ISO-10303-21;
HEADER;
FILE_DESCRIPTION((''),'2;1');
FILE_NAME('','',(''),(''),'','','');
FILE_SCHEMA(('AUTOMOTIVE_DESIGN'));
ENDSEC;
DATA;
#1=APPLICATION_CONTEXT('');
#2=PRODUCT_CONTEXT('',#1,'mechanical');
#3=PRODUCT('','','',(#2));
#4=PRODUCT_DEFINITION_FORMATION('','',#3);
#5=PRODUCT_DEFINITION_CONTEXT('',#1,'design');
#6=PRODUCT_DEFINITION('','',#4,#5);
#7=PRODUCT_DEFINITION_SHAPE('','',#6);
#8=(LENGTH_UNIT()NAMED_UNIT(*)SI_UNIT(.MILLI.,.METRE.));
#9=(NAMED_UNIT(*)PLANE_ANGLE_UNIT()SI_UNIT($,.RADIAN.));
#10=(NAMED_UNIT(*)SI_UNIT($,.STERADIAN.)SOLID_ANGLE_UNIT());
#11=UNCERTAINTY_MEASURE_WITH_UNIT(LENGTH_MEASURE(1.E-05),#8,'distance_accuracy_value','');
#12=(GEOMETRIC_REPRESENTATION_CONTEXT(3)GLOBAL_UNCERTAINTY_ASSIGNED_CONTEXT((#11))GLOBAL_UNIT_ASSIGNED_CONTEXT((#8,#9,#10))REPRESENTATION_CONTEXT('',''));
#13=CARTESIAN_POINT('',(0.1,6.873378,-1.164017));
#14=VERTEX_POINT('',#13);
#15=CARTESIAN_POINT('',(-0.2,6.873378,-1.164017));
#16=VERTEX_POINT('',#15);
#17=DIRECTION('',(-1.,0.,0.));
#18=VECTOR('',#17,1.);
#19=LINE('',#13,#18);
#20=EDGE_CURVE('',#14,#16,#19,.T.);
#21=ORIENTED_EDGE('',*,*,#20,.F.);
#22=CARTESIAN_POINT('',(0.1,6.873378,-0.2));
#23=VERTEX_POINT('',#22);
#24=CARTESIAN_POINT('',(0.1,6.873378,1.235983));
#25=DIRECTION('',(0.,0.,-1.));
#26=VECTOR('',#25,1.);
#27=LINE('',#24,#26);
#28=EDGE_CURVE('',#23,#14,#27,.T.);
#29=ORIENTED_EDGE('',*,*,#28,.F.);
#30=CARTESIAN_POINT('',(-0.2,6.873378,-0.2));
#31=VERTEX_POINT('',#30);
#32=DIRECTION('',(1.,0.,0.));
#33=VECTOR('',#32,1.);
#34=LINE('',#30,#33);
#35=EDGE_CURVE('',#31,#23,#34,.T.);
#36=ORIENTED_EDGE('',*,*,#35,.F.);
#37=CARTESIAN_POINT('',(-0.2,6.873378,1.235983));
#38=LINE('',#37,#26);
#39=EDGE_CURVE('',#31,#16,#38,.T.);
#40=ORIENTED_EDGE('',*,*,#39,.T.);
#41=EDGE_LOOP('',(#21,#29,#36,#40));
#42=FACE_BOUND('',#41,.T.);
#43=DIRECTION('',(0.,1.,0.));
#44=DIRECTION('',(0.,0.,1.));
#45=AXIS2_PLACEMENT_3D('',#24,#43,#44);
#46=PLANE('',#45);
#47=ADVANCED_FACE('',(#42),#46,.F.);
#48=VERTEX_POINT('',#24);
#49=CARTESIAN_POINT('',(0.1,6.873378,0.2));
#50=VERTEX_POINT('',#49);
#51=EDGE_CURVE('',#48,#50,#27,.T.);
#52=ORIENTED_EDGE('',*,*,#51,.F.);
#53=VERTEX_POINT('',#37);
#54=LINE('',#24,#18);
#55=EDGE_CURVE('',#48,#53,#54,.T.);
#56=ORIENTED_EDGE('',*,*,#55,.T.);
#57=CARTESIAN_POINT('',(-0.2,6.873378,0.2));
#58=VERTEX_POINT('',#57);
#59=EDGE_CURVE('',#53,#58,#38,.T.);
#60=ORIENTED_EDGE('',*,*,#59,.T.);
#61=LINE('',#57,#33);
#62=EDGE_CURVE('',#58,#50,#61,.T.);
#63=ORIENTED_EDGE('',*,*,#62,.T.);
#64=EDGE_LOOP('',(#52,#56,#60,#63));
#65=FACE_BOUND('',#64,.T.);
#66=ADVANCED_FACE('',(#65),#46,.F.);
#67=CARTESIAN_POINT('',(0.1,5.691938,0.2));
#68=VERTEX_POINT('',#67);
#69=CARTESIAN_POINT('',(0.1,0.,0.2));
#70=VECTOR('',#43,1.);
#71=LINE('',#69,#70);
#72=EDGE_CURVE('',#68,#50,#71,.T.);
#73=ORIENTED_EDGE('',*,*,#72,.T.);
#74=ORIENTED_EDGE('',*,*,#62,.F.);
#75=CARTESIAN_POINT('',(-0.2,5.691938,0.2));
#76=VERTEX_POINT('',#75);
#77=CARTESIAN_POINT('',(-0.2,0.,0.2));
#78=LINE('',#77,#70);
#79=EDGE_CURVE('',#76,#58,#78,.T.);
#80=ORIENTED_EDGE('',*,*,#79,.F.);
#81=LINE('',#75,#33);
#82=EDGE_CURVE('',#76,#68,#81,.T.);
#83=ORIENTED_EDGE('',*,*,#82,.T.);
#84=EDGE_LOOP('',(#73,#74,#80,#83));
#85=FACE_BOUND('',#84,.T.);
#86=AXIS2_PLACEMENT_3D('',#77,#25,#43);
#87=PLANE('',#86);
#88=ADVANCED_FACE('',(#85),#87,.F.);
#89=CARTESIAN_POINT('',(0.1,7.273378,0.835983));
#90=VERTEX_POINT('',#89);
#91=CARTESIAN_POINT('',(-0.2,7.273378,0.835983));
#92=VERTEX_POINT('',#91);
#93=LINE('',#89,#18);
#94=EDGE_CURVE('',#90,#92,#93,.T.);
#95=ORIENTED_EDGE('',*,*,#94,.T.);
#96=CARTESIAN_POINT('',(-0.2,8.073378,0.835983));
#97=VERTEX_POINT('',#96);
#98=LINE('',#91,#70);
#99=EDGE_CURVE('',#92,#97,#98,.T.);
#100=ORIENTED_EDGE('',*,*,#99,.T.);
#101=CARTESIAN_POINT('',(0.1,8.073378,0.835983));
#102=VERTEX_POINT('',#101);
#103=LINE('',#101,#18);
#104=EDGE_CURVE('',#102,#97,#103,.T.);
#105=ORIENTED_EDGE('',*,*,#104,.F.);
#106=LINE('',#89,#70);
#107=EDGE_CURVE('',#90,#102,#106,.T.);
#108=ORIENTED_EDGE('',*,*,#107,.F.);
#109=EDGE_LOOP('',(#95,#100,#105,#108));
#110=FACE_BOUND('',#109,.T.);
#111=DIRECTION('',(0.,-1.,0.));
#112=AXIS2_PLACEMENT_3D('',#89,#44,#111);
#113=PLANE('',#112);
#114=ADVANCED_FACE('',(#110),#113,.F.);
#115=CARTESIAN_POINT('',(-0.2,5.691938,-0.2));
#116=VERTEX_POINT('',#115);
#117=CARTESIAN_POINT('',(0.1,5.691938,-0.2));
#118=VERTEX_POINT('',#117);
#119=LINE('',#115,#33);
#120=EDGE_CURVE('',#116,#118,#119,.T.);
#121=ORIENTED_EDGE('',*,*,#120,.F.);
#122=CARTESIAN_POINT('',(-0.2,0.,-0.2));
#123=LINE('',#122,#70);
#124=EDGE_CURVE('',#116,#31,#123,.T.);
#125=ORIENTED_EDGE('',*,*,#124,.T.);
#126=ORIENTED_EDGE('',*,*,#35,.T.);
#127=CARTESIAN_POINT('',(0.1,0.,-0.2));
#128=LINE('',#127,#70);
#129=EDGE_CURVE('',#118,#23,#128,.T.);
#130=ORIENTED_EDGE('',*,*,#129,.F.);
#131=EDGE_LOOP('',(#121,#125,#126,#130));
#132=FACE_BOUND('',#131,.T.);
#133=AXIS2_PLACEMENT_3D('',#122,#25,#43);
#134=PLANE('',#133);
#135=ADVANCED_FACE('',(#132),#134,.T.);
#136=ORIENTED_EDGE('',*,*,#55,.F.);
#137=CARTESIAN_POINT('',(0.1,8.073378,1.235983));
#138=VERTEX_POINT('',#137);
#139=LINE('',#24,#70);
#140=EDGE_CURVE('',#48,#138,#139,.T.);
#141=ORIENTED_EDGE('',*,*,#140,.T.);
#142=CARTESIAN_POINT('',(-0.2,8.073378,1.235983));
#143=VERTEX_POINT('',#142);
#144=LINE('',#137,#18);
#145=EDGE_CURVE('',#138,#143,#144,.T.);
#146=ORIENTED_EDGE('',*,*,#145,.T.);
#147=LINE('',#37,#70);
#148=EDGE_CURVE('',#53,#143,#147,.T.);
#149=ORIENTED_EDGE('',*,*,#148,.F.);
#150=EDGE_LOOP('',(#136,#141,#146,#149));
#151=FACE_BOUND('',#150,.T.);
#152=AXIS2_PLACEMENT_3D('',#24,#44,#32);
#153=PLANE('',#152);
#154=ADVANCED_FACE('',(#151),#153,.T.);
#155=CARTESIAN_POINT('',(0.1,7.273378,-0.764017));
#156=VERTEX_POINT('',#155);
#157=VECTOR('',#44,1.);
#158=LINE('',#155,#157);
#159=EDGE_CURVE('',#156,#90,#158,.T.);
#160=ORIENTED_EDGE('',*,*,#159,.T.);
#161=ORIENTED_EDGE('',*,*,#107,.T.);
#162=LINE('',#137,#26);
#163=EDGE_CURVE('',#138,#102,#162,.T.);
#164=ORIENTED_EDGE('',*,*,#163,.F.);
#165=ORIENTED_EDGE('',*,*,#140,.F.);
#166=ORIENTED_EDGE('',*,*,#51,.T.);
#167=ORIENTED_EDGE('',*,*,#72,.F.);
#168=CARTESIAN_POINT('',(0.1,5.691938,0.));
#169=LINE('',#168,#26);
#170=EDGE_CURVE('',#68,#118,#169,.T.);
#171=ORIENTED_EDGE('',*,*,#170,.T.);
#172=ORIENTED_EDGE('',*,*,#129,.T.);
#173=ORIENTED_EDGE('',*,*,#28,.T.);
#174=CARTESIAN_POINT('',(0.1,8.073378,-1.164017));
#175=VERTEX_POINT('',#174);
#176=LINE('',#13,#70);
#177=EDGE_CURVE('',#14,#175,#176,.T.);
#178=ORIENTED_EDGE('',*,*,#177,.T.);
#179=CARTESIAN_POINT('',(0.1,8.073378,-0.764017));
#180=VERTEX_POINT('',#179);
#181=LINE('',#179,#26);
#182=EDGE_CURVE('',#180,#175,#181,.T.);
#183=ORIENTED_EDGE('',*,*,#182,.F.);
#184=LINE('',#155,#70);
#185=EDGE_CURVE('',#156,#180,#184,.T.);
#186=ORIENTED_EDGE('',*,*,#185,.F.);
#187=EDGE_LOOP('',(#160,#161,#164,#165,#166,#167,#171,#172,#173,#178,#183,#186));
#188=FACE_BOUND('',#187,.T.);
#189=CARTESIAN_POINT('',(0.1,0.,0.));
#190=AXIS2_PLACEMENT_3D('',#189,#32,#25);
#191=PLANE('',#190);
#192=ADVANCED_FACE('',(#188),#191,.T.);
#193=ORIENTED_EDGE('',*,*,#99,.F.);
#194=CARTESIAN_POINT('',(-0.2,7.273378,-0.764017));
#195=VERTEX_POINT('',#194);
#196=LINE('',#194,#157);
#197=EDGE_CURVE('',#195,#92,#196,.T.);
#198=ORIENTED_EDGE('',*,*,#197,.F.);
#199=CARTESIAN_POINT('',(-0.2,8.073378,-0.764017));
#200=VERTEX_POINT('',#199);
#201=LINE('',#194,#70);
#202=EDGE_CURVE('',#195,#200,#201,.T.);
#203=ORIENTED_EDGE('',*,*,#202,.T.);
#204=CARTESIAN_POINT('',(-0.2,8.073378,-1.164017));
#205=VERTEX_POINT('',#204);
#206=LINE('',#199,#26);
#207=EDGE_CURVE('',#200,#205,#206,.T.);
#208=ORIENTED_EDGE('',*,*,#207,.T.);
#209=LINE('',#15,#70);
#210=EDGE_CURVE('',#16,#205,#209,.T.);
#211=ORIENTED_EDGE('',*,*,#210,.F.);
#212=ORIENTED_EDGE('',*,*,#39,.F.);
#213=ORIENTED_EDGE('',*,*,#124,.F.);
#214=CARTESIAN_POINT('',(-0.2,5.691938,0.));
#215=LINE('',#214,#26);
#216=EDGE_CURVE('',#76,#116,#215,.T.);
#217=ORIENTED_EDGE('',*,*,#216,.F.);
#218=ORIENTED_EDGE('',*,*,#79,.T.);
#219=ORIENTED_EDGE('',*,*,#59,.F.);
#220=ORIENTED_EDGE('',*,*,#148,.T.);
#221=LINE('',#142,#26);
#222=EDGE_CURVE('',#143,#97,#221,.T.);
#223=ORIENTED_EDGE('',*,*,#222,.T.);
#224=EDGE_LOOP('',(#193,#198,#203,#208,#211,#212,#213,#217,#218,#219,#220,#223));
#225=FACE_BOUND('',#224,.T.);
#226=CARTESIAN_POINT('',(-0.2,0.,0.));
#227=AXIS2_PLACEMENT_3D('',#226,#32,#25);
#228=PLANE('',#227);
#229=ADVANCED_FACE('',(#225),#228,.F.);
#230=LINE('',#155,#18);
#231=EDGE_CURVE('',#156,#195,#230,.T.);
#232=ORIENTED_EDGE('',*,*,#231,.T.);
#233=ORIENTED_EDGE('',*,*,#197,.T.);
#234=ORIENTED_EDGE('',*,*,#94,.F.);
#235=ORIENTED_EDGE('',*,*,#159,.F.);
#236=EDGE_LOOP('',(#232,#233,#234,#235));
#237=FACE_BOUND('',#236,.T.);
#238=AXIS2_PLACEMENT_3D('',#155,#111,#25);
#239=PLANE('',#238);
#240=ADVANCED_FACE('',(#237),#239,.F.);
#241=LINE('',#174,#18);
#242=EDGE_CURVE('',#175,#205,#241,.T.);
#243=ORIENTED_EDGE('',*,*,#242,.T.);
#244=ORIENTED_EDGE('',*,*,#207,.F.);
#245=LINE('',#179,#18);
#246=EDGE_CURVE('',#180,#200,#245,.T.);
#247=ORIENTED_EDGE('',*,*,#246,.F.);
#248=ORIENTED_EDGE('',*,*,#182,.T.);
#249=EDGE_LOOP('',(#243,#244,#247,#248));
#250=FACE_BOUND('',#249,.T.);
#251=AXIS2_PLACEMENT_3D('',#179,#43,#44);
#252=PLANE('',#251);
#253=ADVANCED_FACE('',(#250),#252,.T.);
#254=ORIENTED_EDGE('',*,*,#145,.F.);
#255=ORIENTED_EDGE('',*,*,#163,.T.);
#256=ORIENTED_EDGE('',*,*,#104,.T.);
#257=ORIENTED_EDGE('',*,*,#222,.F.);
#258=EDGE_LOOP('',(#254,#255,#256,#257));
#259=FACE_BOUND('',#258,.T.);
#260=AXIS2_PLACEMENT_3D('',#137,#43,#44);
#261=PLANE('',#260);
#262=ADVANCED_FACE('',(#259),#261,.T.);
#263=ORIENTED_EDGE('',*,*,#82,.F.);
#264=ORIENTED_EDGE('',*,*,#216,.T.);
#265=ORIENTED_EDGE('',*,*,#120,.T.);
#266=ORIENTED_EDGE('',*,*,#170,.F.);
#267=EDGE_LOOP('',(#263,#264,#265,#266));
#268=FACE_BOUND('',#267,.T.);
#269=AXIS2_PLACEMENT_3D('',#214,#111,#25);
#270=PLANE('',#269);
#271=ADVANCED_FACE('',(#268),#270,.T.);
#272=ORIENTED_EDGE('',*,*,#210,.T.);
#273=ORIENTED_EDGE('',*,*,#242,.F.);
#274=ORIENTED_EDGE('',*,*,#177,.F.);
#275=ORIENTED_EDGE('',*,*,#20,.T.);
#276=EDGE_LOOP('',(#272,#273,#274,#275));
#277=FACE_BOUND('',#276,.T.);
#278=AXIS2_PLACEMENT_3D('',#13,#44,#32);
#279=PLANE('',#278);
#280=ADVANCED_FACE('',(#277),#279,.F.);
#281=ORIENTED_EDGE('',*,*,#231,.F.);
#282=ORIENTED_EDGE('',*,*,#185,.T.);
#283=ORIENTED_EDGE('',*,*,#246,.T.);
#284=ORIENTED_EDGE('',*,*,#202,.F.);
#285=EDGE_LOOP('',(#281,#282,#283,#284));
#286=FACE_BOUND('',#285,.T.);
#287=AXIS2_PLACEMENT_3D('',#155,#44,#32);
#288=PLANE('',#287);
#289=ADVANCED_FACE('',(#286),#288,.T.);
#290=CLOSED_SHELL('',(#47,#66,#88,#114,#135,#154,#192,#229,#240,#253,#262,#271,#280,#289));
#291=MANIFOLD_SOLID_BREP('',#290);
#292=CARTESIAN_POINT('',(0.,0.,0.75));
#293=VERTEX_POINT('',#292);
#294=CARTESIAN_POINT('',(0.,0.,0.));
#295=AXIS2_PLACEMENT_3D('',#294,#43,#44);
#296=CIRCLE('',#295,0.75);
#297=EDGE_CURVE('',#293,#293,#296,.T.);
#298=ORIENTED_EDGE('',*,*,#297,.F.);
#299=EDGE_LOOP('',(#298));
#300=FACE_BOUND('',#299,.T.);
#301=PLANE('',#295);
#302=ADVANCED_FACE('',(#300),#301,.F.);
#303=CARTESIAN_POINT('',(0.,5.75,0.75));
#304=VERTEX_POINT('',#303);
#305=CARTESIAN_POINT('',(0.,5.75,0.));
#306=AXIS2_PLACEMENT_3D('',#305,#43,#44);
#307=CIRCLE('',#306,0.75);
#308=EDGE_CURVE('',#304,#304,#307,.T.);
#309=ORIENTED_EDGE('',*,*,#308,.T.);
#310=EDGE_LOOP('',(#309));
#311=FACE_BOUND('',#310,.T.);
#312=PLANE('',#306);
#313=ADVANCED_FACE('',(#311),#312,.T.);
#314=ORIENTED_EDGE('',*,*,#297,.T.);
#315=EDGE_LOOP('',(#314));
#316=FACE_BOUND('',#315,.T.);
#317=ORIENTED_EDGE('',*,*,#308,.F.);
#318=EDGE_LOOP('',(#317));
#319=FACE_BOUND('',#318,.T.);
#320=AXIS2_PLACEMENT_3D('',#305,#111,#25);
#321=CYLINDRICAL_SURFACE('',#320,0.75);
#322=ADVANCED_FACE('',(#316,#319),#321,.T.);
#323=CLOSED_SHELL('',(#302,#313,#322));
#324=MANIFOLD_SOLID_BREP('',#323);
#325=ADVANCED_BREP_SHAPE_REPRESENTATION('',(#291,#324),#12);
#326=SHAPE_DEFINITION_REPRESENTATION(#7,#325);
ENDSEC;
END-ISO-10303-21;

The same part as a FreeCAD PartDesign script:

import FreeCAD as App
import Part
import Sketcher
Q = App.Units.Quantity


def add_polygon(sketch, points):
    """Adds a closed chain of lines whose ends are joined by coincident constraints."""
    first, n = sketch.GeometryCount, len(points)
    for a, b in zip(points, points[1:] + points[:1]):
        sketch.addGeometry(Part.LineSegment(App.Vector(*a, 0), App.Vector(*b, 0)), False)
    for i in range(n):
        sketch.addConstraint(Sketcher.Constraint("Coincident", first + i, 2, first + (i + 1) % n, 1))

doc = App.newDocument("Part")
body = doc.addObject("PartDesign::Body", "Body")

# Sketch on XZ plane
sketch1 = body.newObject("Sketcher::SketchObject", "Sketch")
sketch1.AttachmentSupport = (doc.getObject("XZ_Plane"), [""])
sketch1.MapMode = "FlatFace"
sketch1.addGeometry(Part.Circle(App.Vector(0, 0, 0), App.Vector(0, 0, 1), 0.8), False)
sketch1.addConstraint([
    Sketcher.Constraint("Coincident", 0, 3, -1, 1),
    Sketcher.Constraint("Diameter", 0, Q("1.5 mm")),
])
pad1 = body.newObject("PartDesign::Pad", "Pad")
pad1.Profile = sketch1
pad1.Length = 5.75
pad1.Reversed = True
body2 = doc.addObject("PartDesign::Body", "Body001")

# Sketch on YZ plane
sketch2 = body2.newObject("Sketcher::SketchObject", "Sketch001")
sketch2.AttachmentSupport = (doc.getObject("YZ_Plane001"), [""])
sketch2.MapMode = "FlatFace"
add_polygon(sketch2, [(8.07, 1.24), (6.87, 1.24), (6.87, 0.2), (5.69, 0.2), (5.69, -0.2), (6.87, -0.2), (6.87, -1.16), (8.07, -1.16), (8.07, -0.76), (7.27, -0.76), (7.27, 0.84), (8.07, 0.84)])  # lines 0-11
sketch2.addConstraint([
    Sketcher.Constraint("Horizontal", 0),
    Sketcher.Constraint("Vertical", 1),
    Sketcher.Constraint("Horizontal", 2),
    Sketcher.Constraint("Vertical", 3),
    Sketcher.Constraint("Horizontal", 4),
    Sketcher.Constraint("Vertical", 5),
    Sketcher.Constraint("Horizontal", 6),
    Sketcher.Constraint("Vertical", 7),
    Sketcher.Constraint("Horizontal", 8),
    Sketcher.Constraint("Vertical", 9),
    Sketcher.Constraint("Horizontal", 10),
    Sketcher.Constraint("Vertical", 11),
    Sketcher.Constraint("Symmetric", 1, 2, 4, 2, -1),
    Sketcher.Constraint("Vertical", 7, 2, 10, 2),
    Sketcher.Constraint("Equal", 3, 7),
    Sketcher.Constraint("Equal", 7, 11),
    Sketcher.Constraint("DistanceX", 0, 2, 0, 1, Q("1.2 mm")),
    Sketcher.Constraint("DistanceX", 8, 2, 8, 1, Q("0.8 mm")),
    Sketcher.Constraint("DistanceY", 3, 2, 3, 1, Q("0.4 mm")),
    Sketcher.Constraint("DistanceY", 9, 1, 9, 2, Q("1.6 mm")),
    Sketcher.Constraint("DistanceX", 2, 2, 2, 1, Q("1.18144 mm")),
    Sketcher.Constraint("DistanceY", 1, 2, 1, 1, Q("1.035983 mm")),
    Sketcher.Constraint("DistanceX", -1, 1, 0, 2, Q("6.873378 mm")),
])
pad2 = body2.newObject("PartDesign::Pad", "Pad001")
pad2.Profile = sketch2
pad2.Type = "TwoLengths"
pad2.Length = 0.1
pad2.Length2 = 0.2

doc.recompute()
